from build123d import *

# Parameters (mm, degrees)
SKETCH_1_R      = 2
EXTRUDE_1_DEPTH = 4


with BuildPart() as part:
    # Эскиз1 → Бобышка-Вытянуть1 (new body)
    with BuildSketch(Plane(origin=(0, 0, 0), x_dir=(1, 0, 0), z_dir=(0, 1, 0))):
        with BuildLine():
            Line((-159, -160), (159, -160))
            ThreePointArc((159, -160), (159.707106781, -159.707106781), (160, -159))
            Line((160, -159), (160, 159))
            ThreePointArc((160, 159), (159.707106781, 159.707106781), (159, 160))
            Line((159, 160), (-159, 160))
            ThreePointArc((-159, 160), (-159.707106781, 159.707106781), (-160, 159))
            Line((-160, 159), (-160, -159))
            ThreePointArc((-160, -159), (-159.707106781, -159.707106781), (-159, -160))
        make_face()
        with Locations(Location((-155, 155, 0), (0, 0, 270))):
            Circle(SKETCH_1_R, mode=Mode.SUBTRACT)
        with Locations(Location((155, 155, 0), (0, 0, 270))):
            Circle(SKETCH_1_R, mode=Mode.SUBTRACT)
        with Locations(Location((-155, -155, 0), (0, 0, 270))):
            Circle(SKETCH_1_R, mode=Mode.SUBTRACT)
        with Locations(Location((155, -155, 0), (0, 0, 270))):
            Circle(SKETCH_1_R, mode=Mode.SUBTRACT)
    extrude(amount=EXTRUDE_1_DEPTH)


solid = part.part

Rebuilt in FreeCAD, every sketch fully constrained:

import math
import FreeCAD as App
import Part
import Sketcher

V = App.Vector
Q = App.Units.Quantity

doc = App.newDocument("Part")
body = doc.addObject("PartDesign::Body", "Body")

sketch1 = doc.addObject("Sketcher::SketchObject", "Sketch")
body.addObject(sketch1)
sketch1.AttachmentSupport = (doc.XZ_Plane, [""])
sketch1.MapMode = "FlatFace"
sketch1.addGeometry([
    Part.LineSegment(V(-159, 160, 0), V(159, 160, 0)),
    Part.ArcOfCircle(Part.Circle(V(159, 159, 0), V(0, 0, 1), 1), math.radians(0), math.radians(90)),
    Part.LineSegment(V(160, 159, 0), V(160, -159, 0)),
    Part.ArcOfCircle(Part.Circle(V(159, -159, 0), V(0, 0, 1), 1), math.radians(-90), math.radians(0)),
    Part.LineSegment(V(159, -160, 0), V(-159, -160, 0)),
    Part.ArcOfCircle(Part.Circle(V(-159, -159, 0), V(0, 0, 1), 1), math.radians(-180), math.radians(-90)),
    Part.LineSegment(V(-160, -159, 0), V(-160, 159, 0)),
    Part.ArcOfCircle(Part.Circle(V(-159, 159, 0), V(0, 0, 1), 1), math.radians(90), math.radians(180)),
    Part.Circle(V(-155, 155, 0), V(0, 0, 1), 2),
    Part.Circle(V(155, 155, 0), V(0, 0, 1), 2),
    Part.Circle(V(-155, -155, 0), V(0, 0, 1), 2),
    Part.Circle(V(155, -155, 0), V(0, 0, 1), 2),
], False)
sketch1.addConstraint([
    Sketcher.Constraint("Tangent", 0, 2, 1, 2),
    Sketcher.Constraint("Tangent", 1, 1, 2, 1),
    Sketcher.Constraint("Tangent", 2, 2, 3, 2),
    Sketcher.Constraint("Tangent", 3, 1, 4, 1),
    Sketcher.Constraint("Tangent", 4, 2, 5, 2),
    Sketcher.Constraint("Tangent", 5, 1, 6, 1),
    Sketcher.Constraint("Tangent", 6, 2, 7, 2),
    Sketcher.Constraint("Tangent", 7, 1, 0, 1),
    Sketcher.Constraint("Horizontal", 0),
    Sketcher.Constraint("Vertical", 2),
    Sketcher.Constraint("Horizontal", 4),
    Sketcher.Constraint("Vertical", 6),
    Sketcher.Constraint("Equal", 1, 3),
    Sketcher.Constraint("Equal", 3, 5),
    Sketcher.Constraint("Equal", 5, 7),
    Sketcher.Constraint("Equal", 8, 9),
    Sketcher.Constraint("Equal", 9, 10),
    Sketcher.Constraint("Equal", 10, 11),
    Sketcher.Constraint("Symmetric", 1, 3, 5, 3, -1, 1),
    Sketcher.Constraint("Symmetric", 9, 3, 10, 3, -1, 1),
    Sketcher.Constraint("Symmetric", 8, 3, 11, 3, -1, 1),
    Sketcher.Constraint("Symmetric", 8, 3, 9, 3, -2),
    Sketcher.Constraint("Equal", 4, 2),
    Sketcher.Constraint("Diameter", 8, Q("4 mm")),
    Sketcher.Constraint("Radius", 1, Q("1 mm")),
    Sketcher.Constraint("DistanceX", 0, 1, 0, 2, Q("318 mm")),
    Sketcher.Constraint("DistanceX", 8, 3, -1, 1, Q("155 mm")),
    Sketcher.Constraint("DistanceY", -1, 1, 8, 3, Q("155 mm")),
])
pad1 = doc.addObject("PartDesign::Pad", "Pad")
body.addObject(pad1)
pad1.Profile = sketch1
pad1.Length = 4
pad1.Reversed = True

doc.recompute()
